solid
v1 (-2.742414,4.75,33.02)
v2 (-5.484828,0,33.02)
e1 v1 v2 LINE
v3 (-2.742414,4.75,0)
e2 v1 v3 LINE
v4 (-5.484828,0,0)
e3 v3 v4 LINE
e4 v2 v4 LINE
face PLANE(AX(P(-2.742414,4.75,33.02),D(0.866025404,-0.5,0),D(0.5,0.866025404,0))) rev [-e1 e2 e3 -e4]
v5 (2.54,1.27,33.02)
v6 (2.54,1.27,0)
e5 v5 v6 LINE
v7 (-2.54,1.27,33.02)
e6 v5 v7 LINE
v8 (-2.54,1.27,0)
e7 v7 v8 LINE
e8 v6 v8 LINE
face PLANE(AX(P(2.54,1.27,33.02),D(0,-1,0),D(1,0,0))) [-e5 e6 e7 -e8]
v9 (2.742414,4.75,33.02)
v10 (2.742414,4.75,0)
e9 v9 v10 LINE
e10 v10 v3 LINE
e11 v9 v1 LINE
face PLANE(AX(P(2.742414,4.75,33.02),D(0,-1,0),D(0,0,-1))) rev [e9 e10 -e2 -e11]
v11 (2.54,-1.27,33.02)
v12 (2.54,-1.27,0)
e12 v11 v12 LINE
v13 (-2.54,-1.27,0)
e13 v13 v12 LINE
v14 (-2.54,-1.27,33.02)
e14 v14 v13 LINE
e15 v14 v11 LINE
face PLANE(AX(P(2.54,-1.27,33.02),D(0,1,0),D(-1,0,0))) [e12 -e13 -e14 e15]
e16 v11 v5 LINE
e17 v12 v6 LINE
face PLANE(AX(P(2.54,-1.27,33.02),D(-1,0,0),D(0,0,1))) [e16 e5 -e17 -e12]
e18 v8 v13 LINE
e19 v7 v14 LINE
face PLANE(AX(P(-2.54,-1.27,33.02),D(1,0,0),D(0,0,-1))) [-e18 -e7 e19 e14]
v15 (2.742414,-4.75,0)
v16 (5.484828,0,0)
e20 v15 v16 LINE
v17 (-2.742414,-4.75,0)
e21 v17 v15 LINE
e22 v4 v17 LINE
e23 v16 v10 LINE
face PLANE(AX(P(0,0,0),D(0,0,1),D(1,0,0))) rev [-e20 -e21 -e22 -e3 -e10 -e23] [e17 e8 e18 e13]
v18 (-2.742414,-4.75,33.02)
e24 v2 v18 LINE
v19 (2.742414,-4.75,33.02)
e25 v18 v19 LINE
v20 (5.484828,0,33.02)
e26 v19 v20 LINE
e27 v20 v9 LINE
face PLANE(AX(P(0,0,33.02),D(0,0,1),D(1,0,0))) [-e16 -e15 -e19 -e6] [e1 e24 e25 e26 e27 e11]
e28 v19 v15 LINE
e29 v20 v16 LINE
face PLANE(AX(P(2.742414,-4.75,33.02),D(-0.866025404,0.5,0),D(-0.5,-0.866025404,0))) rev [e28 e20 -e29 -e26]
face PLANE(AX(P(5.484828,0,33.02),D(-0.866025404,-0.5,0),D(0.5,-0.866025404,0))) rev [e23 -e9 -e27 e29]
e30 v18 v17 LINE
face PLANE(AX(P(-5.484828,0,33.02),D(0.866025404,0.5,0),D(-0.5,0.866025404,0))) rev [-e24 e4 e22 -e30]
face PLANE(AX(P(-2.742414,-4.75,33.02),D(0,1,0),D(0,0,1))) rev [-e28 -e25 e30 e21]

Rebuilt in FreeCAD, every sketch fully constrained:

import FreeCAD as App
import Part
import Sketcher
Q = App.Units.Quantity


def add_polygon(sketch, points):
    """Adds a closed chain of lines whose ends are joined by coincident constraints."""
    first, n = sketch.GeometryCount, len(points)
    for a, b in zip(points, points[1:] + points[:1]):
        sketch.addGeometry(Part.LineSegment(App.Vector(*a, 0), App.Vector(*b, 0)), False)
    for i in range(n):
        sketch.addConstraint(Sketcher.Constraint("Coincident", first + i, 2, first + (i + 1) % n, 1))

doc = App.newDocument("Part")
body = doc.addObject("PartDesign::Body", "Body")

sketch1 = doc.addObject("Sketcher::SketchObject", "Sketch")
body.addObject(sketch1)
sketch1.AttachmentSupport = (doc.XY_Plane, [""])
sketch1.MapMode = "FlatFace"
add_polygon(sketch1, [(-2.742414, 4.75), (-5.484828, 0), (-2.742414, -4.75), (2.742414, -4.75), (5.484828, 0), (2.742414, 4.75)])
add_polygon(sketch1, [(2.54, -1.27), (-2.54, -1.27), (-2.54, 1.27), (2.54, 1.27)])
sketch1.addConstraint([
    Sketcher.Constraint("Horizontal", 2),
    Sketcher.Constraint("Horizontal", 5),
    Sketcher.Constraint("Horizontal", 6),
    Sketcher.Constraint("Vertical", 7),
    Sketcher.Constraint("Horizontal", 8),
    Sketcher.Constraint("Vertical", 9),
    Sketcher.Constraint("Symmetric", 0, 2, 3, 2, -1, 1),
    Sketcher.Constraint("Symmetric", 1, 2, 4, 2, -1, 1),
    Sketcher.Constraint("Symmetric", 6, 2, 8, 2, -1, 1),
    Sketcher.Constraint("PointOnObject", 0, 2, -1),
    Sketcher.Constraint("Parallel", 0, 3),
    Sketcher.Constraint("Vertical", 2, 2, 4, 2),
    Sketcher.Constraint("DistanceX", 6, 2, 6, 1, Q("0.2 in")),
    Sketcher.Constraint("DistanceY", 7, 1, 7, 2, Q("0.1 in")),
    Sketcher.Constraint("Angle", 0, Q("-120 deg")),
    Sketcher.Constraint("DistanceY", 1, 2, -1, 1, 4.75),
    Sketcher.Constraint("DistanceX", 2, 1, 2, 2, 5.484828),
])
pad1 = doc.addObject("PartDesign::Pad", "Pad")
body.addObject(pad1)
pad1.Profile = sketch1
pad1.Length = Q("1.3 in")

doc.recompute()
